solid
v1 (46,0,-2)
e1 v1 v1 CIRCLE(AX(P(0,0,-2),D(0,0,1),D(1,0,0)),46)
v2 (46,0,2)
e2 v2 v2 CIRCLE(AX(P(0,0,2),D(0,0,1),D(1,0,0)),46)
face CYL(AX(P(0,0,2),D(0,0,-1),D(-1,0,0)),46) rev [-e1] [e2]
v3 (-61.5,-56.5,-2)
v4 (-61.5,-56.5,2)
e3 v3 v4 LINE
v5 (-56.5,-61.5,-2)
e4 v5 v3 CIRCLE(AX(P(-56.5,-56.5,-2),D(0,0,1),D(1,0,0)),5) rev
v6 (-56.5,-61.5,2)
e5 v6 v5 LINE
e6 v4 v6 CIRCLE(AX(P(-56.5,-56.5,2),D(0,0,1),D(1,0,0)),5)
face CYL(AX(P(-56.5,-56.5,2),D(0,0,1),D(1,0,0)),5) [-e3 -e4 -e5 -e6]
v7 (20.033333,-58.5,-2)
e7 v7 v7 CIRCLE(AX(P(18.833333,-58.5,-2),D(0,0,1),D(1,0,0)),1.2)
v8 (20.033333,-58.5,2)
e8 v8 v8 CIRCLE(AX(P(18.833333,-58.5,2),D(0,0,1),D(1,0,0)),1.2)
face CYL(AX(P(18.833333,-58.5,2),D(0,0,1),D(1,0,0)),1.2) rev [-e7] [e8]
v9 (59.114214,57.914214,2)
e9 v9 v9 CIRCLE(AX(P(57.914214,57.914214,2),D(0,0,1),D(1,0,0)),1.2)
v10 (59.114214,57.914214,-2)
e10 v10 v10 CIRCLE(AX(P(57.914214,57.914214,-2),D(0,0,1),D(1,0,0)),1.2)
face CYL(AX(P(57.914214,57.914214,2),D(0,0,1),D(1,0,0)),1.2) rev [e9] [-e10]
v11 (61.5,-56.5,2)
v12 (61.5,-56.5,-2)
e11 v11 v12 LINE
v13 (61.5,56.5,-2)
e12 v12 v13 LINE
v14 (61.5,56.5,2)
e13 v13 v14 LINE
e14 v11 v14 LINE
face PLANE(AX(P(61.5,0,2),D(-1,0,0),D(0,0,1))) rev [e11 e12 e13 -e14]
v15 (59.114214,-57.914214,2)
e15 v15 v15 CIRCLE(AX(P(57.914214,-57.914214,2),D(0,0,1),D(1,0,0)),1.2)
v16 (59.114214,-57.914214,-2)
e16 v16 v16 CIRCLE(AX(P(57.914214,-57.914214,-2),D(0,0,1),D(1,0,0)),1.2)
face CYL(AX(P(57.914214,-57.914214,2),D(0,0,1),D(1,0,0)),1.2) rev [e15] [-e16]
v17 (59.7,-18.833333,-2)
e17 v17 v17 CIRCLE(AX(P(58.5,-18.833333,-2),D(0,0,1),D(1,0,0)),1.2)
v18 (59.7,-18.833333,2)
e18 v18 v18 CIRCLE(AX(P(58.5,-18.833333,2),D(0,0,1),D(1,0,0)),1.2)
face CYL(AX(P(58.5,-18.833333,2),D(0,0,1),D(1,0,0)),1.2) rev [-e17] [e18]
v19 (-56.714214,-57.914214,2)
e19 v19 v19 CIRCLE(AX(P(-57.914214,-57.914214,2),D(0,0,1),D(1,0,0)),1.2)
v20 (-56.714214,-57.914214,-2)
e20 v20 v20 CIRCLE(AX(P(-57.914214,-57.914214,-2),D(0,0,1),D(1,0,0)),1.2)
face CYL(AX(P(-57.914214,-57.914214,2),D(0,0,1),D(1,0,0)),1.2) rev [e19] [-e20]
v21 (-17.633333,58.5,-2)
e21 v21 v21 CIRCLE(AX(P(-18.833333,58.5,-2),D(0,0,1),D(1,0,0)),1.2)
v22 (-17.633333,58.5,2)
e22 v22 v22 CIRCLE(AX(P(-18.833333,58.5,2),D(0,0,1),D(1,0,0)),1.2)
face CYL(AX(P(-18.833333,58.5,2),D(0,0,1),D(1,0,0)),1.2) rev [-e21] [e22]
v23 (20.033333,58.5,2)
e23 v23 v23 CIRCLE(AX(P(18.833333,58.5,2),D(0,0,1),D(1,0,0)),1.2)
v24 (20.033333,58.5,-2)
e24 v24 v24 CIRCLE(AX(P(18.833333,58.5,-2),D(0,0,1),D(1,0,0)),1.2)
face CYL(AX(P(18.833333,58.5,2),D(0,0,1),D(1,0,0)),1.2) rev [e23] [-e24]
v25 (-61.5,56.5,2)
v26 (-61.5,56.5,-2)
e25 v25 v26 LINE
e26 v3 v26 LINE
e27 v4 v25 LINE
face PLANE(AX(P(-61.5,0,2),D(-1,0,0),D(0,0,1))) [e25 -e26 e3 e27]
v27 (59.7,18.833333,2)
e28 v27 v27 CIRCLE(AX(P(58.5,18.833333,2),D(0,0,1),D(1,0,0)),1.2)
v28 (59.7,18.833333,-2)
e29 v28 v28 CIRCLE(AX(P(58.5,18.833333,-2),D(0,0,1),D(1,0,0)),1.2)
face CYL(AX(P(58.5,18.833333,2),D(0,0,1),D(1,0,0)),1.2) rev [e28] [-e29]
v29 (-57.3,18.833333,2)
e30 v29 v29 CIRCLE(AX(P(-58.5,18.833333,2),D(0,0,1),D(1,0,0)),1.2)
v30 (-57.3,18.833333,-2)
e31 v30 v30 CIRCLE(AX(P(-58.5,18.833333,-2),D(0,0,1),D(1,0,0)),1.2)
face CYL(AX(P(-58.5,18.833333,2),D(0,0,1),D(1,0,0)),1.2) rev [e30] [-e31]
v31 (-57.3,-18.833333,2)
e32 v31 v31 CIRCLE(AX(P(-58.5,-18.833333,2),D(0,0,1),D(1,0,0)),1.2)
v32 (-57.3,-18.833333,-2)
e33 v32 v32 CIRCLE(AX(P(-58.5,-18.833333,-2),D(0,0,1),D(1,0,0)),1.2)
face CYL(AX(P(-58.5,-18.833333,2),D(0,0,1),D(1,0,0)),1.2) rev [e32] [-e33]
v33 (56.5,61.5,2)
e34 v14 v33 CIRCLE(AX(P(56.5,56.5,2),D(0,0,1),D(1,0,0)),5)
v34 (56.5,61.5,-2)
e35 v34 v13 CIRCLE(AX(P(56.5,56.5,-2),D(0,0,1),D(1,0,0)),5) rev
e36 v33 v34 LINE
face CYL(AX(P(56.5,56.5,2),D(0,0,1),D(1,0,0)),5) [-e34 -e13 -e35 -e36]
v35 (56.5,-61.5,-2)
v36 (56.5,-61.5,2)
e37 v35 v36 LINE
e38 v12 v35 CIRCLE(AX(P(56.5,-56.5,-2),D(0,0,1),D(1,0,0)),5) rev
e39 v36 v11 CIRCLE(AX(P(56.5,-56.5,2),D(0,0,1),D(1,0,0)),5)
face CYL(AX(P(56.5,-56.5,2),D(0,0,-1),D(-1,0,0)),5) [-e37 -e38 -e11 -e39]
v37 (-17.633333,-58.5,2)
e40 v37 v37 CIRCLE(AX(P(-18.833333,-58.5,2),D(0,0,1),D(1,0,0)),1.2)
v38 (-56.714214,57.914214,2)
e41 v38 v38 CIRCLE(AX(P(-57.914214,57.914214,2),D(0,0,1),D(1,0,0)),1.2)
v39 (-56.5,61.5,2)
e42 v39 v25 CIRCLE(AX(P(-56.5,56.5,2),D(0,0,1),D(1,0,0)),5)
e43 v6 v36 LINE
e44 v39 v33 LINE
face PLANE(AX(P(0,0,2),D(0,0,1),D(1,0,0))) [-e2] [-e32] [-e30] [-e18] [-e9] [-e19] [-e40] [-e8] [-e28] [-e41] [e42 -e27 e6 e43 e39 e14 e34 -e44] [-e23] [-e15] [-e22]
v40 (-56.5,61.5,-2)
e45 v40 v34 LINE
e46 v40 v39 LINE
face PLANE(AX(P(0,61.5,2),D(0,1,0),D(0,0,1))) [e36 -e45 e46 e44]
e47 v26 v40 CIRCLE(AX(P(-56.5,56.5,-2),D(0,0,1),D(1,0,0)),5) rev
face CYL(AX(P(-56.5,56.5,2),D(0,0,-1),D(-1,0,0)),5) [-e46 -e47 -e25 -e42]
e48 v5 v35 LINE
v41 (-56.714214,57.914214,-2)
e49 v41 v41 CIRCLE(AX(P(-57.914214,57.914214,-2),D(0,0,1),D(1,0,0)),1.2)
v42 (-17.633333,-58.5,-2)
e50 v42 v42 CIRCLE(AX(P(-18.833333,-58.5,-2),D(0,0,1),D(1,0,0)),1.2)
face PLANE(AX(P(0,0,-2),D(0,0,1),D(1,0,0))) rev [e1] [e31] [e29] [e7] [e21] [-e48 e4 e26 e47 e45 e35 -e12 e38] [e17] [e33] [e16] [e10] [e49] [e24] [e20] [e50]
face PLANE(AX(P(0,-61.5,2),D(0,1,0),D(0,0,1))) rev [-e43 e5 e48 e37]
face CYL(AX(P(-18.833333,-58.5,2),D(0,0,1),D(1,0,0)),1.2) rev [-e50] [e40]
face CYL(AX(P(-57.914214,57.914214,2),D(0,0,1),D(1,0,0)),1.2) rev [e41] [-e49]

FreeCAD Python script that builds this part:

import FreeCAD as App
import Part
import Sketcher

V = App.Vector
Q = App.Units.Quantity


def edges_at(feature, points):
    """Names of the edges that pass closest to the given points."""
    edges = feature.Shape.Edges
    near = lambda p: min(range(len(edges)), key=lambda i: edges[i].distToShape(Part.Vertex(*p))[0])
    return sorted({f"Edge{near(p) + 1}" for p in points})


def add_polygon(sketch, points):
    """Adds a closed chain of lines whose ends are joined by coincident constraints."""
    first, n = sketch.GeometryCount, len(points)
    for a, b in zip(points, points[1:] + points[:1]):
        sketch.addGeometry(Part.LineSegment(App.Vector(*a, 0), App.Vector(*b, 0)), False)
    for i in range(n):
        sketch.addConstraint(Sketcher.Constraint("Coincident", first + i, 2, first + (i + 1) % n, 1))

doc = App.newDocument("Part")
body = doc.addObject("PartDesign::Body", "Body")

sketch1 = doc.addObject("Sketcher::SketchObject", "Sketch")
body.addObject(sketch1)
sketch1.AttachmentSupport = (doc.XY_Plane, [""])
sketch1.MapMode = "FlatFace"
add_polygon(sketch1, [(-62, 62), (-62, -62), (62, -62), (62, 62)])
sketch1.addGeometry(Part.Circle(V(0, 0, 0), V(0, 0, 1), 46), False)
sketch1.addConstraint([
    Sketcher.Constraint("Vertical", 0),
    Sketcher.Constraint("Horizontal", 1),
    Sketcher.Constraint("Vertical", 2),
    Sketcher.Constraint("Horizontal", 3),
    Sketcher.Constraint("Coincident", 4, 3, -1, 1),
    Sketcher.Constraint("Symmetric", 0, 2, 2, 2, -1, 1),
    Sketcher.Constraint("Equal", 3, 0),
    Sketcher.Constraint("Diameter", 4, Q("92 mm")),
    Sketcher.Constraint("DistanceX", 1, 1, 1, 2, Q("123 mm")),
])
pad1 = doc.addObject("PartDesign::Pad", "Pad")
body.addObject(pad1)
pad1.Profile = sketch1
pad1.Length = 4
pad1.Midplane = True
doc.recompute()

fillet = doc.addObject("PartDesign::Fillet", "Fillet")
body.addObject(fillet)
fillet.Base = (pad1, edges_at(pad1, [
    (-61.5, -61.5, 0),
    (-61.5, 61.5, 0),
    (61.5, 61.5, 0),
    (61.5, -61.5, 0),
]))
fillet.Radius = 5

sketch2 = doc.addObject("Sketcher::SketchObject", "Sketch001")
body.addObject(sketch2)
sketch2.AttachmentSupport = (doc.XY_Plane, [""])
sketch2.MapMode = "FlatFace"
sketch2.AttachmentOffset = App.Placement(V(0, 0, 2), App.Rotation())
sketch2.addGeometry([
    Part.Circle(V(58.5, -18.8, 0), V(0, 0, 1), 1.2),
    Part.Circle(V(-57.9, 57.9, 0), V(0, 0, 1), 1.2),
    Part.Circle(V(57.9, 57.9, 0), V(0, 0, 1), 1.2),
    Part.Circle(V(57.9, -57.9, 0), V(0, 0, 1), 1.2),
    Part.Circle(V(-57.9, -57.9, 0), V(0, 0, 1), 1.2),
    Part.Circle(V(-18.8, -58.5, 0), V(0, 0, 1), 1.2),
    Part.Circle(V(18.8, -58.5, 0), V(0, 0, 1), 1.2),
    Part.Circle(V(-58.5, -18.8, 0), V(0, 0, 1), 1.2),
    Part.Circle(V(-58.5, 18.8, 0), V(0, 0, 1), 1.2),
    Part.Circle(V(-18.8, 58.5, 0), V(0, 0, 1), 1.2),
    Part.Circle(V(18.8, 58.5, 0), V(0, 0, 1), 1.2),
    Part.Circle(V(58.5, 18.8, 0), V(0, 0, 1), 1.2),
], False)
sketch2.addConstraint([
    Sketcher.Constraint("Equal", 0, 1),
    Sketcher.Constraint("Equal", 1, 2),
    Sketcher.Constraint("Equal", 2, 3),
    Sketcher.Constraint("Equal", 3, 4),
    Sketcher.Constraint("Equal", 4, 5),
    Sketcher.Constraint("Equal", 5, 6),
    Sketcher.Constraint("Equal", 6, 7),
    Sketcher.Constraint("Equal", 7, 8),
    Sketcher.Constraint("Equal", 8, 9),
    Sketcher.Constraint("Equal", 9, 10),
    Sketcher.Constraint("Equal", 10, 11),
    Sketcher.Constraint("Symmetric", 1, 3, 3, 3, -1, 1),
    Sketcher.Constraint("Symmetric", 2, 3, 4, 3, -1, 1),
    Sketcher.Constraint("Symmetric", 0, 3, 8, 3, -1, 1),
    Sketcher.Constraint("Symmetric", 6, 3, 9, 3, -1, 1),
    Sketcher.Constraint("Symmetric", 5, 3, 10, 3, -1, 1),
    Sketcher.Constraint("Symmetric", 7, 3, 11, 3, -1, 1),
    Sketcher.Constraint("Symmetric", 1, 3, 2, 3, -2),
    Sketcher.Constraint("Symmetric", 5, 3, 6, 3, -2),
    Sketcher.Constraint("Symmetric", 0, 3, 7, 3, -2),
    Sketcher.Constraint("Diameter", 0, Q("2.4 mm")),
    Sketcher.Constraint("DistanceX", 7, 3, 0, 3, Q("117 mm")),
    Sketcher.Constraint("DistanceY", 5, 3, -1, 1, Q("58.5 mm")),
    Sketcher.Constraint("DistanceY", 3, 3, 0, 3, Q("39.08088 mm")),
    Sketcher.Constraint("DistanceX", 4, 3, 5, 3, Q("39.08088 mm")),
    Sketcher.Constraint("DistanceY", 0, 3, -1, 1, Q("18.833333 mm")),
    Sketcher.Constraint("DistanceX", 1, 3, -1, 1, Q("57.914214 mm")),
])
doc.recompute()
hole = doc.addObject("PartDesign::Hole", "Hole")
body.addObject(hole)
hole.Profile = sketch2
hole.ThreadType = "None"
hole.Diameter = 2.4
hole.DepthType = "Dimension"
hole.Depth = 4
hole.DrillPoint = "Flat"

doc.recompute()
